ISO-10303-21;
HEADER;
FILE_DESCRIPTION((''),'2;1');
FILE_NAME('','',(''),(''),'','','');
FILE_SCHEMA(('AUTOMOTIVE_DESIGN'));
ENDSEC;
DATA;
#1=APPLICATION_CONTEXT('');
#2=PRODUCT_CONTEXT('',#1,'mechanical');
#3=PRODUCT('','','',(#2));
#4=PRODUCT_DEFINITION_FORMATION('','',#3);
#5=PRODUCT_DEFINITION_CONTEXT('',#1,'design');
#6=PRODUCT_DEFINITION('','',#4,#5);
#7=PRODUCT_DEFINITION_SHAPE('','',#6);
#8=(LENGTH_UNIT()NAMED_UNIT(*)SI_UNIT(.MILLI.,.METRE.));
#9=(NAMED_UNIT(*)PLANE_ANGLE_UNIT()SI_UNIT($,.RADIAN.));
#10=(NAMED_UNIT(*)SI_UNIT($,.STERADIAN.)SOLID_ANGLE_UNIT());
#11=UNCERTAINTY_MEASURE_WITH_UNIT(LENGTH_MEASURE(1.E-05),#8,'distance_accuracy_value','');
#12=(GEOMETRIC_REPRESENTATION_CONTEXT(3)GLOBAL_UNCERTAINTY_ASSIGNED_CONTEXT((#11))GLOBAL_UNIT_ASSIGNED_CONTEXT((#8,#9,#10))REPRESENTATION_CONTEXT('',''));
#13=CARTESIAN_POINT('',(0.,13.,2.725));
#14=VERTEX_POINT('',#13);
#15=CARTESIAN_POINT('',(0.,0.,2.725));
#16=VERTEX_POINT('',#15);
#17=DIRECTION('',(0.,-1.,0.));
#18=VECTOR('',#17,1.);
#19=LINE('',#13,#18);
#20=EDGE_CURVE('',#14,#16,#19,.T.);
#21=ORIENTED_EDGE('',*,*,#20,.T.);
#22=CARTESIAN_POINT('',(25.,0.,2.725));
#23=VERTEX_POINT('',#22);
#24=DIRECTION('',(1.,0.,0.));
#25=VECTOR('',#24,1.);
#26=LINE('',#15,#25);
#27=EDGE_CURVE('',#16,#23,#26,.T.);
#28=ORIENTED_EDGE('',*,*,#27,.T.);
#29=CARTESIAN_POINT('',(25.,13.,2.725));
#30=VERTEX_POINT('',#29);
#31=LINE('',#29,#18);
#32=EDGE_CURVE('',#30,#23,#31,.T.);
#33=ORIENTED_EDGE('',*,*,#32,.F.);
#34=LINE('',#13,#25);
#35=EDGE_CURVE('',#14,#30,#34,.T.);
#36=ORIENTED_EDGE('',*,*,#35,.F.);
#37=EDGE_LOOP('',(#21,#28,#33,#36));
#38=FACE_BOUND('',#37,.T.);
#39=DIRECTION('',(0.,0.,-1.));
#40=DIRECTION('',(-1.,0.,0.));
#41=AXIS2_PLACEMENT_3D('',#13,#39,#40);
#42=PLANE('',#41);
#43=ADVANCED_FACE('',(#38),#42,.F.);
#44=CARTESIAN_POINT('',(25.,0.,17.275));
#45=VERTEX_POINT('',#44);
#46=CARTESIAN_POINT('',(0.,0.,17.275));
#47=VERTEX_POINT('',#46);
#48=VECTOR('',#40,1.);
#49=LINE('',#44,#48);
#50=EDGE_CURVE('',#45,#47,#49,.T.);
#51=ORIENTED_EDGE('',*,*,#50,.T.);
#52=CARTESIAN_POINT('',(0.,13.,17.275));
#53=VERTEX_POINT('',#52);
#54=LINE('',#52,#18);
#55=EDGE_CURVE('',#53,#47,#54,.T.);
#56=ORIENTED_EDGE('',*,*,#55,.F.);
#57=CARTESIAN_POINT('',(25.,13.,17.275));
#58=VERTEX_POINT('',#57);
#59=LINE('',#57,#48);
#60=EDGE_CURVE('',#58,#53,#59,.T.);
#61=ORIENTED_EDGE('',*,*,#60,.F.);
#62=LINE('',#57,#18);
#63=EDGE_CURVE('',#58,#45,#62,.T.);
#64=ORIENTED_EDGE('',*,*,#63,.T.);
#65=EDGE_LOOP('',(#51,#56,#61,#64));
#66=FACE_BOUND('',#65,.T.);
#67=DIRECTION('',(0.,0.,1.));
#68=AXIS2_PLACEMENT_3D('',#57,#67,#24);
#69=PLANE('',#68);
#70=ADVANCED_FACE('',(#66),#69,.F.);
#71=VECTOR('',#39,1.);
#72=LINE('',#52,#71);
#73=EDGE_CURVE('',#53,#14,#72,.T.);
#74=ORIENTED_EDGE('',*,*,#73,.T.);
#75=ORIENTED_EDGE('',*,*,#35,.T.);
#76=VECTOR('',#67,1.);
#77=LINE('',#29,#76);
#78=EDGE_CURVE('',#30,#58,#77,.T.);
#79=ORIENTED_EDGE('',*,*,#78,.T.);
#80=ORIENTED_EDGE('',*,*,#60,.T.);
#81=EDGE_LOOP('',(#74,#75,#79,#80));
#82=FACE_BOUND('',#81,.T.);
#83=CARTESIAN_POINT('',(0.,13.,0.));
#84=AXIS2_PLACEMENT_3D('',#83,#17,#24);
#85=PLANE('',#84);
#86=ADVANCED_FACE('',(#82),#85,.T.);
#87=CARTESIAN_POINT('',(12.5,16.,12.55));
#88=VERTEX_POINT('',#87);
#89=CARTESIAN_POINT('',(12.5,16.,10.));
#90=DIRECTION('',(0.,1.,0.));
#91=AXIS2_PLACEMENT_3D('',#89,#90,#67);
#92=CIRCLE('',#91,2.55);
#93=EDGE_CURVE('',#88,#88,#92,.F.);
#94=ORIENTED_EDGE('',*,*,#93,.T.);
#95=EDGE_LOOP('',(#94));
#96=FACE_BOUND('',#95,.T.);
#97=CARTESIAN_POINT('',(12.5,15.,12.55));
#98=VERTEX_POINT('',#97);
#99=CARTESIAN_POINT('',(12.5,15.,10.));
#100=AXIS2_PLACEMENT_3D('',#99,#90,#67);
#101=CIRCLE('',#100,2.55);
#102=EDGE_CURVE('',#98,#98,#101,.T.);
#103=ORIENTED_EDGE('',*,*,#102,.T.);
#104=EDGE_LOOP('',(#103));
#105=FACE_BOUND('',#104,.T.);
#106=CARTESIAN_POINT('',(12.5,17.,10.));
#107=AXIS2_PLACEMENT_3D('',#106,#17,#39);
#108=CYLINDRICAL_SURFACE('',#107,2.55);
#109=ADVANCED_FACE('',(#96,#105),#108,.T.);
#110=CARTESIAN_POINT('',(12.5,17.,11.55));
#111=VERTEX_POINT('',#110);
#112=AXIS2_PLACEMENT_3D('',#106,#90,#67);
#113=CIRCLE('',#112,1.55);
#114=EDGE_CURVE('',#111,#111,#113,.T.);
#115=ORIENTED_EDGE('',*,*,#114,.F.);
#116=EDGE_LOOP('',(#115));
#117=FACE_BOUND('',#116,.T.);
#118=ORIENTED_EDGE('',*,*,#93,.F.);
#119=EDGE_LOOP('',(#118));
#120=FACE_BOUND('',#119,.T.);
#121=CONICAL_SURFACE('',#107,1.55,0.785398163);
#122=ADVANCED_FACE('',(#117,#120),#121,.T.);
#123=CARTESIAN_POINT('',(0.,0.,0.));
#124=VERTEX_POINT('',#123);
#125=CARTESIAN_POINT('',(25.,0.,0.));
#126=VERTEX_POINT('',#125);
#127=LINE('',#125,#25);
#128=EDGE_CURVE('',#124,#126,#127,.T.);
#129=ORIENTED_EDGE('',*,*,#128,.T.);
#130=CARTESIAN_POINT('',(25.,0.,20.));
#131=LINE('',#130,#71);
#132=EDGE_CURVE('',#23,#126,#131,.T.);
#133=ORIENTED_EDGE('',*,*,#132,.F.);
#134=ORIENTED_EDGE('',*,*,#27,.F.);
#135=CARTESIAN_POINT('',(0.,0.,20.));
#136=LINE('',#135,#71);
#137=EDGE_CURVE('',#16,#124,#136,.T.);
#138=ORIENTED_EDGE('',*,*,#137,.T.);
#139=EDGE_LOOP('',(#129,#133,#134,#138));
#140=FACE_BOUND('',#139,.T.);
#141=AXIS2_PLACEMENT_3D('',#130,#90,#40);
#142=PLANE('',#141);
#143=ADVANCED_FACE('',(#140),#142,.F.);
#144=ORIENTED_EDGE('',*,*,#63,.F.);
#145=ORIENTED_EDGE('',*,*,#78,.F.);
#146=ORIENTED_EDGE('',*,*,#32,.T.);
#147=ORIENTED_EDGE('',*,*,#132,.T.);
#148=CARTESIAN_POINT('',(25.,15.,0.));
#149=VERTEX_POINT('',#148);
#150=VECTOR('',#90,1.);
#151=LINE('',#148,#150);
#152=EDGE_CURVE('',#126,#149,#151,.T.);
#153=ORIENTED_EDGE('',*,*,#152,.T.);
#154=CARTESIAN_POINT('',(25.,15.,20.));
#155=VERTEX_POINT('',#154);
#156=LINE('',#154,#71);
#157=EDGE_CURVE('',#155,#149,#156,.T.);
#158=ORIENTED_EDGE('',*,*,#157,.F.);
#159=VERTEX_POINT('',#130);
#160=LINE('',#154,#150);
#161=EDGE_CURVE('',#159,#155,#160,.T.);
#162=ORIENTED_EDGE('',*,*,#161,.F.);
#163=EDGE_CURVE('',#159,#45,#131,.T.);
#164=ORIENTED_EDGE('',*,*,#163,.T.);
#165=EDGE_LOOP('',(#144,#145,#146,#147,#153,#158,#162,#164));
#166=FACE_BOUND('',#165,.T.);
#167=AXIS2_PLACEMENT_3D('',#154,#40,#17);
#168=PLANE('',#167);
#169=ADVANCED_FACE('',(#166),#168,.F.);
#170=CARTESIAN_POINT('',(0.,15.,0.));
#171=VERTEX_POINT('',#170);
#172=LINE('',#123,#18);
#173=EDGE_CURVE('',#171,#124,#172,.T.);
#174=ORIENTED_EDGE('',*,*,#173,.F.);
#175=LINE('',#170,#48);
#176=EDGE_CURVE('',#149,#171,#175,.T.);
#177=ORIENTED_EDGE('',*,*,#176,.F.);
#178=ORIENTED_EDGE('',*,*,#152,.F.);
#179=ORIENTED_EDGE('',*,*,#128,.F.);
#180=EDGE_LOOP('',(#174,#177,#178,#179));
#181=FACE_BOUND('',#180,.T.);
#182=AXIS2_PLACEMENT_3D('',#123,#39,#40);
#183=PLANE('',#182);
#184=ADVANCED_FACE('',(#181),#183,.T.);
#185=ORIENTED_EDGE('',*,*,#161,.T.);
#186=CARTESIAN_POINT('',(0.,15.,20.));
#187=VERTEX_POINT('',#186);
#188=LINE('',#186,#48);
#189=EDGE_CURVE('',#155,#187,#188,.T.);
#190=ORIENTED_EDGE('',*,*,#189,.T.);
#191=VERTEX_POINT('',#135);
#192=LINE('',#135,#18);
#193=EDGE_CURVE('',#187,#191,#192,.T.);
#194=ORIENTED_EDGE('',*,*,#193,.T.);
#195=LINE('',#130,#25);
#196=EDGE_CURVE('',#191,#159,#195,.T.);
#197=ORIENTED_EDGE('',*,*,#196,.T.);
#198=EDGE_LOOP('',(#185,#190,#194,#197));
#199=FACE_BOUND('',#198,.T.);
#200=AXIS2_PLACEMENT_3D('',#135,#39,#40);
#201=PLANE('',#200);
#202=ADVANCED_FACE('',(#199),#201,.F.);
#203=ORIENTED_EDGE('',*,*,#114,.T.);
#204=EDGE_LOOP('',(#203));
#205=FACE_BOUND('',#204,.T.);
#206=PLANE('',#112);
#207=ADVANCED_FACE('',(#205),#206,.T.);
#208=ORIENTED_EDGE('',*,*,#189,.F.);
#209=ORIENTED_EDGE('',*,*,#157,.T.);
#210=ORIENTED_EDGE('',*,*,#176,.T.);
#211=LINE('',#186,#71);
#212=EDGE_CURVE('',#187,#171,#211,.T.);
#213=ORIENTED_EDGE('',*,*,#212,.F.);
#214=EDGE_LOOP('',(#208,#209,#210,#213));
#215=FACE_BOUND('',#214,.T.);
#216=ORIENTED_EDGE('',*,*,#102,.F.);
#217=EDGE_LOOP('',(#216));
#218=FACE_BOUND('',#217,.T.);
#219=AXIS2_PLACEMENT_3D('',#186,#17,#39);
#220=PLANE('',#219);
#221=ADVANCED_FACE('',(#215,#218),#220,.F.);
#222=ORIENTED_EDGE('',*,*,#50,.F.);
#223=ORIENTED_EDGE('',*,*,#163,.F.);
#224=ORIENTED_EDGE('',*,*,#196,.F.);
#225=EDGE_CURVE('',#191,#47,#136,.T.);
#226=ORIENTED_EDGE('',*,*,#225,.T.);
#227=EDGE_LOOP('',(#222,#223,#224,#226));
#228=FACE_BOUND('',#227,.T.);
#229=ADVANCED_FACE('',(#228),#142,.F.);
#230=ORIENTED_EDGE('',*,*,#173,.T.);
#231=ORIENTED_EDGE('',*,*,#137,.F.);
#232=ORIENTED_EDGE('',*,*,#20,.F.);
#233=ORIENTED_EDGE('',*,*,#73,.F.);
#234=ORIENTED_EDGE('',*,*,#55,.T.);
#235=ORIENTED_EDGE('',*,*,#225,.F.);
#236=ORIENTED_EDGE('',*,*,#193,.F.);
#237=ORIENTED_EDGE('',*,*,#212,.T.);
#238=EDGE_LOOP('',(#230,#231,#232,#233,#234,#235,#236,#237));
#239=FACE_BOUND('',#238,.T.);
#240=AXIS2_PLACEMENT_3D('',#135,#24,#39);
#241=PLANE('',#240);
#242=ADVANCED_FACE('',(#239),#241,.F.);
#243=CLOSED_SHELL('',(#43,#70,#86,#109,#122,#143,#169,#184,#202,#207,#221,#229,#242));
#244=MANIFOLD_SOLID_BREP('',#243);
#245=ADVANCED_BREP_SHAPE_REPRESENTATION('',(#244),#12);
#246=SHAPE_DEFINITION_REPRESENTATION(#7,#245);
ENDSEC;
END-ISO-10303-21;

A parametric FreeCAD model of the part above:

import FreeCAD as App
import Part
import Sketcher
from FreeCAD import Vector


def edges_at(feature, points):
    """Names of the edges that pass closest to the given points."""
    edges = feature.Shape.Edges
    near = lambda p: min(range(len(edges)), key=lambda i: edges[i].distToShape(Part.Vertex(*p))[0])
    return sorted({f"Edge{near(p) + 1}" for p in points})


def add_polygon(sketch, points):
    """Adds a closed chain of lines whose ends are joined by coincident constraints."""
    first, n = sketch.GeometryCount, len(points)
    for a, b in zip(points, points[1:] + points[:1]):
        sketch.addGeometry(Part.LineSegment(App.Vector(*a, 0), App.Vector(*b, 0)), False)
    for i in range(n):
        sketch.addConstraint(Sketcher.Constraint("Coincident", first + i, 2, first + (i + 1) % n, 1))

doc = App.newDocument("Part")
body = doc.addObject("PartDesign::Body", "Body")

# Sketch on XY plane
sketch1 = body.newObject("Sketcher::SketchObject", "Sketch")
sketch1.AttachmentSupport = (doc.getObject("XY_Plane"), [""])
sketch1.MapMode = "FlatFace"
add_polygon(sketch1, [(0, 15), (0, 0), (25, 0), (25, 15)])  # lines 0-3
sketch1.addConstraint([
    Sketcher.Constraint("Vertical", 0),
    Sketcher.Constraint("Horizontal", 1),
    Sketcher.Constraint("Vertical", 2),
    Sketcher.Constraint("Horizontal", 3),
    Sketcher.Constraint("Coincident", 0, 2, -1, 1),
    Sketcher.Constraint("DistanceX", 1, 1, 1, 2, 25.0),
    Sketcher.Constraint("DistanceY", 0, 2, 0, 1, 15.0),
])
pad1 = body.newObject("PartDesign::Pad", "Pad")
pad1.Profile = sketch1
pad1.Length = 20

# Sketch on XZ plane
sketch2 = body.newObject("Sketcher::SketchObject", "Sketch001")
sketch2.AttachmentSupport = (doc.getObject("XZ_Plane"), [""])
sketch2.MapMode = "FlatFace"
add_polygon(sketch2, [(0, 17.275), (0, 2.725), (25, 2.725), (25, 17.275)])  # lines 0-3
sketch2.addConstraint([
    Sketcher.Constraint("Vertical", 0),
    Sketcher.Constraint("Horizontal", 1),
    Sketcher.Constraint("Vertical", 2),
    Sketcher.Constraint("Horizontal", 3),
    Sketcher.Constraint("PointOnObject", 0, 2, -2),
    Sketcher.Constraint("DistanceX", 1, 1, 1, 2, 25.0),
    Sketcher.Constraint("DistanceY", 0, 2, 0, 1, 14.55),
    Sketcher.Constraint("DistanceY", -1, 1, 0, 2, 2.725),
])
pocket1 = body.newObject("PartDesign::Pocket", "Pocket")
pocket1.Profile = sketch2
pocket1.Length = 13

# Sketch on XZ plane
sketch3 = body.newObject("Sketcher::SketchObject", "Sketch002")
sketch3.AttachmentSupport = (doc.getObject("XZ_Plane"), [""])
sketch3.MapMode = "FlatFace"
sketch3.AttachmentOffset = App.Placement(Vector(0, 0, -15), App.Rotation())
sketch3.addGeometry(Part.Circle(Vector(12.5, 10, 0), Vector(0, 0, 1), 2.55), False)
sketch3.addConstraint([
    Sketcher.Constraint("Diameter", 0, 5.1),
    Sketcher.Constraint("DistanceY", -1, 1, 0, 3, 10.0),
    Sketcher.Constraint("DistanceX", -1, 1, 0, 3, 12.5),
])
pad2 = body.newObject("PartDesign::Pad", "Pad001")
pad2.Profile = sketch3
pad2.Length = 2
pad2.Reversed = True
doc.recompute()

chamfer = body.newObject("PartDesign::Chamfer", "Chamfer")
chamfer.Base = (pad2, edges_at(pad2, [(12.5, 17, 7.45)]))
chamfer.Size = 1

doc.recompute()
